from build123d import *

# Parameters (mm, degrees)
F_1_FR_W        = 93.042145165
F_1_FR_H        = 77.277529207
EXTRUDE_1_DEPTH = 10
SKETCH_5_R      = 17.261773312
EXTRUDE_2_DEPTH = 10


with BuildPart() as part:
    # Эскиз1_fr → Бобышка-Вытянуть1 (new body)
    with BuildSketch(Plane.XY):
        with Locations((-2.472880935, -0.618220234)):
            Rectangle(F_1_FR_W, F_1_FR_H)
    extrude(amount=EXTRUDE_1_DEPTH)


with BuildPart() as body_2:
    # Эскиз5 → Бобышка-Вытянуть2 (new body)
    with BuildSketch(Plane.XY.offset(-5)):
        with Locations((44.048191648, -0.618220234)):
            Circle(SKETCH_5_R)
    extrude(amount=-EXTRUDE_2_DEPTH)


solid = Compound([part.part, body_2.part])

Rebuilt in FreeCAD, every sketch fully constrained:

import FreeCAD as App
import Part
import Sketcher

V = App.Vector


def add_polygon(sketch, points):
    """Adds a closed chain of lines whose ends are joined by coincident constraints."""
    first, n = sketch.GeometryCount, len(points)
    for a, b in zip(points, points[1:] + points[:1]):
        sketch.addGeometry(Part.LineSegment(App.Vector(*a, 0), App.Vector(*b, 0)), False)
    for i in range(n):
        sketch.addConstraint(Sketcher.Constraint("Coincident", first + i, 2, first + (i + 1) % n, 1))

doc = App.newDocument("Part")
body = doc.addObject("PartDesign::Body", "Body")

sketch1 = body.newObject("Sketcher::SketchObject", "Sketch")
sketch1.AttachmentSupport = (doc.getObject("XY_Plane"), [""])
sketch1.MapMode = "FlatFace"
add_polygon(sketch1, [(-49, 38), (-49, -39), (44, -39), (44, 38)])
sketch1.addConstraint(Sketcher.Constraint("Vertical", 0))
sketch1.addConstraint(Sketcher.Constraint("Horizontal", 1))
sketch1.addConstraint(Sketcher.Constraint("Vertical", 2))
sketch1.addConstraint(Sketcher.Constraint("Horizontal", 3))
sketch1.addConstraint(Sketcher.Constraint("DistanceY", 0, 2, 0, 1, 77.277529))
sketch1.addConstraint(Sketcher.Constraint("DistanceX", 1, 1, 1, 2, 93.042145))
sketch1.addConstraint(Sketcher.Constraint("DistanceX", -1, 1, 1, 2, 44.048192))
sketch1.addConstraint(Sketcher.Constraint("DistanceY", 0, 2, -1, 1, 39.256985))
pad1 = body.newObject("PartDesign::Pad", "Pad")
pad1.Profile = sketch1
pad1.Length = 10
body2 = doc.addObject("PartDesign::Body", "Body001")

sketch2 = body2.newObject("Sketcher::SketchObject", "Sketch001")
sketch2.AttachmentSupport = (doc.getObject("XY_Plane001"), [""])
sketch2.MapMode = "FlatFace"
sketch2.AttachmentOffset = App.Placement(V(0, 0, -5), App.Rotation())
sketch2.addGeometry(Part.Circle(V(44, -1, 0), V(0, 0, 1), 17), False)
sketch2.addConstraint(Sketcher.Constraint("Diameter", 0, 34.523547))
sketch2.addConstraint(Sketcher.Constraint("DistanceX", -1, 1, 0, 3, 44.048192))
sketch2.addConstraint(Sketcher.Constraint("DistanceY", 0, 3, -1, 1, 0.61822))
pad2 = body2.newObject("PartDesign::Pad", "Pad001")
pad2.Profile = sketch2
pad2.Length = 10
pad2.Reversed = True

doc.recompute()
